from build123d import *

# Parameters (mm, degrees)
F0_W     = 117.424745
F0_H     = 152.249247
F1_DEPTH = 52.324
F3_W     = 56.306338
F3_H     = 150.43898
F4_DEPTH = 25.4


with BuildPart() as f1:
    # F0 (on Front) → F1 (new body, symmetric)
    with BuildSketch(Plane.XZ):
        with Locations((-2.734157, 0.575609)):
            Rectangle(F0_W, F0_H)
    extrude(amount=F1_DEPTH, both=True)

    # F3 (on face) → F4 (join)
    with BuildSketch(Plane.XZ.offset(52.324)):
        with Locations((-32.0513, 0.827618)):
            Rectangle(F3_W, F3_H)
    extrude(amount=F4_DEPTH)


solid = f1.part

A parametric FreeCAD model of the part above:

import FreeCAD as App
import Part
import Sketcher

V = App.Vector


def add_polygon(sketch, points):
    """Adds a closed chain of lines whose ends are joined by coincident constraints."""
    first, n = sketch.GeometryCount, len(points)
    for a, b in zip(points, points[1:] + points[:1]):
        sketch.addGeometry(Part.LineSegment(App.Vector(*a, 0), App.Vector(*b, 0)), False)
    for i in range(n):
        sketch.addConstraint(Sketcher.Constraint("Coincident", first + i, 2, first + (i + 1) % n, 1))

doc = App.newDocument("Part")
params = doc.addObject("Spreadsheet::Sheet", "Params")
for row, (alias, value) in enumerate([
    ("pad1_length", "4.12 in"),
    ("pad2_length", "1 in"),
], start=1):
    params.set(f"A{row}", alias)
    params.set(f"B{row}", "=" + value)
    params.setAlias(f"B{row}", alias)

body = doc.addObject("PartDesign::Body", "Body")

sketch1 = body.newObject("Sketcher::SketchObject", "Sketch")
sketch1.AttachmentSupport = (doc.getObject("XZ_Plane"), [""])
sketch1.MapMode = "FlatFace"
add_polygon(sketch1, [(-61, 77), (-61, -76), (56, -76), (56, 77)])
sketch1.addConstraint(Sketcher.Constraint("Vertical", 0))
sketch1.addConstraint(Sketcher.Constraint("Horizontal", 1))
sketch1.addConstraint(Sketcher.Constraint("Vertical", 2))
sketch1.addConstraint(Sketcher.Constraint("Horizontal", 3))
sketch1.addConstraint(Sketcher.Constraint("DistanceX", 1, 1, 1, 2, 117.424745))
sketch1.addConstraint(Sketcher.Constraint("DistanceY", 0, 2, 0, 1, 152.249247))
sketch1.addConstraint(Sketcher.Constraint("DistanceX", 0, 2, -1, 1, 61.446529))
sketch1.addConstraint(Sketcher.Constraint("DistanceY", 0, 2, -1, 1, 75.549014))
pad1 = body.newObject("PartDesign::Pad", "Pad")
pad1.Profile = sketch1
pad1.setExpression("Length", "Params.pad1_length")
pad1.Midplane = True

sketch2 = body.newObject("Sketcher::SketchObject", "Sketch001")
sketch2.AttachmentSupport = (doc.getObject("XZ_Plane"), [""])
sketch2.MapMode = "FlatFace"
sketch2.AttachmentOffset = App.Placement(V(0, 0, 2.06 * 25.4), App.Rotation())
add_polygon(sketch2, [(-60, 76), (-60, -74), (-4, -74), (-4, 76)])
sketch2.addConstraint(Sketcher.Constraint("Vertical", 0))
sketch2.addConstraint(Sketcher.Constraint("Horizontal", 1))
sketch2.addConstraint(Sketcher.Constraint("Vertical", 2))
sketch2.addConstraint(Sketcher.Constraint("Horizontal", 3))
sketch2.addConstraint(Sketcher.Constraint("DistanceX", 1, 1, 1, 2, 56.306338))
sketch2.addConstraint(Sketcher.Constraint("DistanceY", 0, 2, 0, 1, 150.43898))
sketch2.addConstraint(Sketcher.Constraint("DistanceX", 0, 2, -1, 1, 60.204469))
sketch2.addConstraint(Sketcher.Constraint("DistanceY", 0, 2, -1, 1, 74.391872))
pad2 = body.newObject("PartDesign::Pad", "Pad001")
pad2.Profile = sketch2
pad2.setExpression("Length", "Params.pad2_length")

doc.recompute()
